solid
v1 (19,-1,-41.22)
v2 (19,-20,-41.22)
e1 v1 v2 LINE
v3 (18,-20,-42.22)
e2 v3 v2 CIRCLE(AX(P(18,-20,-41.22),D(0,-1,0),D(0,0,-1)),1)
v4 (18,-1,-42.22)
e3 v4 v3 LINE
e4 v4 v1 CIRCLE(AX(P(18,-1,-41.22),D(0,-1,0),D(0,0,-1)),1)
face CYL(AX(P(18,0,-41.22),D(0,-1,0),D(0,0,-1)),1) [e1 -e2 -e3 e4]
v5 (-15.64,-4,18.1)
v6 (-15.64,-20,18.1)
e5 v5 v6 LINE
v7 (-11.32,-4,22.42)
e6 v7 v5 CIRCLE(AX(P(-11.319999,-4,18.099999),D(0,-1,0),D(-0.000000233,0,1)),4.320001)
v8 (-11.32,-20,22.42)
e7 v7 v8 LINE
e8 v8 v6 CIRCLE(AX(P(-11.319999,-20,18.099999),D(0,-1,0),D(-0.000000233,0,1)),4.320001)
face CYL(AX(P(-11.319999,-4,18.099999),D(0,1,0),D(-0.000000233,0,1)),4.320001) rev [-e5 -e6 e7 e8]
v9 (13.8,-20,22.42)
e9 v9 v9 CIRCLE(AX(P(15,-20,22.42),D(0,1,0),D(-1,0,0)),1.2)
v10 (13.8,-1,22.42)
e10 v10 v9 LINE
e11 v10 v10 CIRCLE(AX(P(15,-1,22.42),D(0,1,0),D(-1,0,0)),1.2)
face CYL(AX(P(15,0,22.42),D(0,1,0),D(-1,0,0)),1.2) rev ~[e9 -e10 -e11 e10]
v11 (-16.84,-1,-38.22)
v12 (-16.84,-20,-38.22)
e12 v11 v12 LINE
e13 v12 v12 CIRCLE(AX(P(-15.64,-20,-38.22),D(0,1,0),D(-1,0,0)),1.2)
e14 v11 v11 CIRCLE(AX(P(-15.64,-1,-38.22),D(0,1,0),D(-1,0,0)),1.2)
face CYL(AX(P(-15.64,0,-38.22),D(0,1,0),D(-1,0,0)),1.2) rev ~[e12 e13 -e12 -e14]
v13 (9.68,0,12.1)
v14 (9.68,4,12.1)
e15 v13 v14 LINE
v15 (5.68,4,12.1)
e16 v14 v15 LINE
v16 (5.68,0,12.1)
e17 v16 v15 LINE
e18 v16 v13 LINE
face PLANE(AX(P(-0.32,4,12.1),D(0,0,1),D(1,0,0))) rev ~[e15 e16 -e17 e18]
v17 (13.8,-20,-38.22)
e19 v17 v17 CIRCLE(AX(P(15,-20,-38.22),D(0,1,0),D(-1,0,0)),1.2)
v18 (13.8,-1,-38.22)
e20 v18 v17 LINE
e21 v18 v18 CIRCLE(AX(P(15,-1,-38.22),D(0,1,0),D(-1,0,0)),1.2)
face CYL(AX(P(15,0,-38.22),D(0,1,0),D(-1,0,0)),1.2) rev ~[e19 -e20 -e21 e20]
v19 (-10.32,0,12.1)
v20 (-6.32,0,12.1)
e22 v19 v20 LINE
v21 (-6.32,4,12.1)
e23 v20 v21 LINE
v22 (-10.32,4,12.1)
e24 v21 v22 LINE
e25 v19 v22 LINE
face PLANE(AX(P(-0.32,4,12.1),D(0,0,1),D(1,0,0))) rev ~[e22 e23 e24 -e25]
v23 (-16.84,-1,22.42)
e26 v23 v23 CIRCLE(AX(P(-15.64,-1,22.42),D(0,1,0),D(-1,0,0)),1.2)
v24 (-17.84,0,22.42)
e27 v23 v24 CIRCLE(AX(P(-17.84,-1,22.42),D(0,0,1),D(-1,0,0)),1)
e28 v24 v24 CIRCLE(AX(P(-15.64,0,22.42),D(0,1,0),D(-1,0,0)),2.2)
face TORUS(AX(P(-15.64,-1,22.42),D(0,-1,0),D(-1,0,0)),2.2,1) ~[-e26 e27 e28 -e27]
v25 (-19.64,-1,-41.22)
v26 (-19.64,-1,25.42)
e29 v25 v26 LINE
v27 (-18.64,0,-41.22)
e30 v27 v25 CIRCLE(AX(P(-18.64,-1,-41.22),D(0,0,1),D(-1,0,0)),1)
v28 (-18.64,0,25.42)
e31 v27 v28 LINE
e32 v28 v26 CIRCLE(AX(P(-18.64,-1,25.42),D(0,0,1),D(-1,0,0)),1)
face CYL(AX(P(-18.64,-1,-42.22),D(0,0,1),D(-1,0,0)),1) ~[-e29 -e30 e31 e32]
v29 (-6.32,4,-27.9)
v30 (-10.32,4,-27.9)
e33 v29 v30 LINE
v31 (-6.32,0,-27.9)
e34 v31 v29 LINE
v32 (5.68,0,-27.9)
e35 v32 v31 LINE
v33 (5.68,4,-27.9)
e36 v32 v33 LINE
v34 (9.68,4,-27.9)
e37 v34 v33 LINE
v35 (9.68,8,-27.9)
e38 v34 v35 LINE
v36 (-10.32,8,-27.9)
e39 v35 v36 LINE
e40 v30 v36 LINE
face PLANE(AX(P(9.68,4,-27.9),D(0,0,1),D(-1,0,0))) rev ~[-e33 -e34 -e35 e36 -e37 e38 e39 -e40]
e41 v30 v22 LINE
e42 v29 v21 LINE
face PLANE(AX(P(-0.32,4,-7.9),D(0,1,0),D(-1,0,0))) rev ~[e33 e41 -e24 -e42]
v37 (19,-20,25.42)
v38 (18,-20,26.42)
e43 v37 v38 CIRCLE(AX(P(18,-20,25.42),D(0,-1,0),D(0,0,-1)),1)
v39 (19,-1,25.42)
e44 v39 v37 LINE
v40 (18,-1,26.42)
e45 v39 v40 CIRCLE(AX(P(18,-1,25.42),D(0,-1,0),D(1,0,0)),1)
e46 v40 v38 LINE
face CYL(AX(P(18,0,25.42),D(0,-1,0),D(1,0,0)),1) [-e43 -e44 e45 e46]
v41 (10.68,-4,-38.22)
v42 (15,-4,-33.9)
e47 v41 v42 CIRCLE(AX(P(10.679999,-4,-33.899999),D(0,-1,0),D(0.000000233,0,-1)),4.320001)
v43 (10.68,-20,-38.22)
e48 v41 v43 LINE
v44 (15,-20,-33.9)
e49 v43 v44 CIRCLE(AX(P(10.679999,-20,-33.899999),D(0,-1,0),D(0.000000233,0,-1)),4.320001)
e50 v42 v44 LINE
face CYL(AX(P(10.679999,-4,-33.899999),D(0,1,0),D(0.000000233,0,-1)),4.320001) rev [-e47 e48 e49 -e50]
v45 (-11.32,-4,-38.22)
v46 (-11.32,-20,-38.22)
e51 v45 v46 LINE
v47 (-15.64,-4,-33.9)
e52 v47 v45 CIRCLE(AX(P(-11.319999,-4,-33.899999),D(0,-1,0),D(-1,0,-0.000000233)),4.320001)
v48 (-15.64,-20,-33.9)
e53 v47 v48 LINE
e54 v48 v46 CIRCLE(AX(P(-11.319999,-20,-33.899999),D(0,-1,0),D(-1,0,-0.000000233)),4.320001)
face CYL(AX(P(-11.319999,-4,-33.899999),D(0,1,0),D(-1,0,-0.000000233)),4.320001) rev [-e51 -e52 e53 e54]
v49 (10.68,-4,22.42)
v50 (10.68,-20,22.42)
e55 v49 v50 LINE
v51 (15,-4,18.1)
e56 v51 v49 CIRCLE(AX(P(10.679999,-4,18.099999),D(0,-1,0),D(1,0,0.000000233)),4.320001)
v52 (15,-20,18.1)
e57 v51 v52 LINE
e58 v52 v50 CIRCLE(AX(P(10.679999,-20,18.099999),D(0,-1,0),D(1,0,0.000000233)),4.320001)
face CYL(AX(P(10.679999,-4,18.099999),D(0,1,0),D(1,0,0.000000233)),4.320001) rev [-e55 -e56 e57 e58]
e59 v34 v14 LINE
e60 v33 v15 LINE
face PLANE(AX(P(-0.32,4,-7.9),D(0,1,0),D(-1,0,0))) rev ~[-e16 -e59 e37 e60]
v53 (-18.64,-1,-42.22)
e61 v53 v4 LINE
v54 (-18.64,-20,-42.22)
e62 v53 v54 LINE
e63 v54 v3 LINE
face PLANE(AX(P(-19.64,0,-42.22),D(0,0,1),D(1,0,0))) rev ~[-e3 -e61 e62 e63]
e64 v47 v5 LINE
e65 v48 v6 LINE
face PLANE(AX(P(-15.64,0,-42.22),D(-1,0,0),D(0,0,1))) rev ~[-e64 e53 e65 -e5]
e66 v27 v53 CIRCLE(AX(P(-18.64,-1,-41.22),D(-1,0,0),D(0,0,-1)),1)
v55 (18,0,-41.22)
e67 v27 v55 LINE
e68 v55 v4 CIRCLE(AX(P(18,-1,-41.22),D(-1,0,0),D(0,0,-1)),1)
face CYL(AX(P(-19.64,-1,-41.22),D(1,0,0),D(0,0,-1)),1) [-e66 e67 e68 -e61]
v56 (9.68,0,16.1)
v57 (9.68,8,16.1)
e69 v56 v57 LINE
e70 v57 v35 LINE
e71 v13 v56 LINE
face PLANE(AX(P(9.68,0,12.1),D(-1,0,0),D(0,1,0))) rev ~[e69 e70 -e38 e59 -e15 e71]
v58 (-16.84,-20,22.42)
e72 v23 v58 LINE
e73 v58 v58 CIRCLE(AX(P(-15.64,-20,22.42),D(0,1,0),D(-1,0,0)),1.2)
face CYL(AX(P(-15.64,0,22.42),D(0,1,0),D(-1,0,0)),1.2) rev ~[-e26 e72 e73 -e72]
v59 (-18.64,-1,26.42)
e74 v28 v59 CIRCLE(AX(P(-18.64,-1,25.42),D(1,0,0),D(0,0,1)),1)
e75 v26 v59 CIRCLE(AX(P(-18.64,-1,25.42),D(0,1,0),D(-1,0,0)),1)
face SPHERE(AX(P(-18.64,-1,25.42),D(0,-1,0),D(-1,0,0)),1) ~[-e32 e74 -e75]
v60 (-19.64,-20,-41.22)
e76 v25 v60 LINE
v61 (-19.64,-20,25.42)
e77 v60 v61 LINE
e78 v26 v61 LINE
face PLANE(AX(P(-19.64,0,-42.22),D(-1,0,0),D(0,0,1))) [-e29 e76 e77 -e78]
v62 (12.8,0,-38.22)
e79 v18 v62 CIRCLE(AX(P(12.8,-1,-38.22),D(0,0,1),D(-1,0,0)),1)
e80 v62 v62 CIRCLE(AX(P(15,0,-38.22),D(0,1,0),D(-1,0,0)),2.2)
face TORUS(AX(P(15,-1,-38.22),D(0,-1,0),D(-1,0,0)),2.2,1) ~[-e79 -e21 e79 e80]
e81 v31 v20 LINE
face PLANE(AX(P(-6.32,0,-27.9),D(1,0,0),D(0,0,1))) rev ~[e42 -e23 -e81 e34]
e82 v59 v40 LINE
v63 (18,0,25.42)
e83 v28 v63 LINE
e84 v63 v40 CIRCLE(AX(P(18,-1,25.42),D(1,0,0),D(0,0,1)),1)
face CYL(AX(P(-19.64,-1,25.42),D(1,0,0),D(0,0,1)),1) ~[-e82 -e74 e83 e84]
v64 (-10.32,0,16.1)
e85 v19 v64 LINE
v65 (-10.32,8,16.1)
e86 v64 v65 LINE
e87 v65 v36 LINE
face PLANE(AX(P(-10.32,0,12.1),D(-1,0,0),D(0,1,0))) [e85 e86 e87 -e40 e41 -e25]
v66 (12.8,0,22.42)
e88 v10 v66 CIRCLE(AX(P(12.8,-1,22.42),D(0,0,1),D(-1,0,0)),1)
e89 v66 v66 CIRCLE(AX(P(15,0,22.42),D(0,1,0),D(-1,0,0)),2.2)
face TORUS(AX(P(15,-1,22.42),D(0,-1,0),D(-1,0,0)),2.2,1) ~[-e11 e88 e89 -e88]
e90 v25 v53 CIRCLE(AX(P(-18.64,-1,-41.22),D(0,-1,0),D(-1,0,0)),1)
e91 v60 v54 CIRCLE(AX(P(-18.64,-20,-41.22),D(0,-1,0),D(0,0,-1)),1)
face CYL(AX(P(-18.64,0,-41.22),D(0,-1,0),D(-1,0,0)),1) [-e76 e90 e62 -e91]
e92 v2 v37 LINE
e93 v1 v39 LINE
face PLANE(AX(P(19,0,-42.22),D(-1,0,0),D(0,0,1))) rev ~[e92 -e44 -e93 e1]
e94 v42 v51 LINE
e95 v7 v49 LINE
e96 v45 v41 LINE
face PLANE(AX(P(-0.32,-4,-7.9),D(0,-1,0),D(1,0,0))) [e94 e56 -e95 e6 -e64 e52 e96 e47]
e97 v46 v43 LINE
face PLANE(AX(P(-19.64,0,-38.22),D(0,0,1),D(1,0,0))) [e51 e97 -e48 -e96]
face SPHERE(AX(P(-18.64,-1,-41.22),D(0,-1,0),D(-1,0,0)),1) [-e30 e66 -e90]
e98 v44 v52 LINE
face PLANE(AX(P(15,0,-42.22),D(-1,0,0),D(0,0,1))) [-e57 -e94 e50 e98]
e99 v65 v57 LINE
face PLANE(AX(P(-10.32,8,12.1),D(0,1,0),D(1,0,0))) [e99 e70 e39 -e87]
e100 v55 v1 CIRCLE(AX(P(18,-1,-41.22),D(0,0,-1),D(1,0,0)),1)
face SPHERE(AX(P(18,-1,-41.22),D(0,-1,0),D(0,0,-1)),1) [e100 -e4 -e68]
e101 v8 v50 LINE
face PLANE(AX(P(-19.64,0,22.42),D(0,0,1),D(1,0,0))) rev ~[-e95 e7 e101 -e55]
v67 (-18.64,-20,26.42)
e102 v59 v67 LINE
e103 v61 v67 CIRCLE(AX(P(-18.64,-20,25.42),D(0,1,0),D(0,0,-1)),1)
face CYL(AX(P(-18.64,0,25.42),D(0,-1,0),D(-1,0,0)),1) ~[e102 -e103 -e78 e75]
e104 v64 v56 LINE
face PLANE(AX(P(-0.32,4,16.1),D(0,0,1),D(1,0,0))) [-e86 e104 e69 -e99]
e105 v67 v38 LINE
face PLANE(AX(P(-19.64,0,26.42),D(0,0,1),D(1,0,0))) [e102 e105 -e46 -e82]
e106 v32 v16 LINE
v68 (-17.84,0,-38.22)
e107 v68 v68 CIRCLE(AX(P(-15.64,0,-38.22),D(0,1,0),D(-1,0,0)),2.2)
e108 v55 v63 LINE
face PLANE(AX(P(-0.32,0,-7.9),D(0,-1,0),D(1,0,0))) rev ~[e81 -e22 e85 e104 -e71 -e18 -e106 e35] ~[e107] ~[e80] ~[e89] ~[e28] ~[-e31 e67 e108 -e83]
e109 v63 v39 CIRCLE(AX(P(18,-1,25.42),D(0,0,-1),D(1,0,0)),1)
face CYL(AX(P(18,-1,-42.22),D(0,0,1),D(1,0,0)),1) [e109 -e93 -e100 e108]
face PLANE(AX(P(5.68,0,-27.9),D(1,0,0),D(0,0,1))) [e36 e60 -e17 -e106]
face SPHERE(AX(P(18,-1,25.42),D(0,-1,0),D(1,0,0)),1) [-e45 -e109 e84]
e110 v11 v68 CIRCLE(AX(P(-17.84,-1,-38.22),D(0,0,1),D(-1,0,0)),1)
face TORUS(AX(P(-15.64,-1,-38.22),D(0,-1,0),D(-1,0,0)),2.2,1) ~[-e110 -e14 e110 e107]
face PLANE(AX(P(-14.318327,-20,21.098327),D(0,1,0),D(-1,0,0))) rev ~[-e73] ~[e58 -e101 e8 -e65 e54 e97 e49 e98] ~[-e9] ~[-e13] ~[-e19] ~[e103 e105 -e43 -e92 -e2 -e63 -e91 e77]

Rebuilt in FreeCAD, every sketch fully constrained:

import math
import FreeCAD as App
import Part
import Sketcher

V = App.Vector


def edges_at(feature, points):
    """Names of the edges that pass closest to the given points."""
    edges = feature.Shape.Edges
    near = lambda p: min(range(len(edges)), key=lambda i: edges[i].distToShape(Part.Vertex(*p))[0])
    return sorted({f"Edge{near(p) + 1}" for p in points})


def faces_at(feature, points):
    """Names of the faces that lie closest to the given points."""
    faces = feature.Shape.Faces
    near = lambda p: min(range(len(faces)), key=lambda i: faces[i].distToShape(Part.Vertex(*p))[0])
    return sorted({f"Face{near(p) + 1}" for p in points})

doc = App.newDocument("Part")
params = doc.addObject("Spreadsheet::Sheet", "Params")
for row, (alias, value) in enumerate([
    ("sketch1_width", "38.64 mm"),
    ("sketch1_height", "68.64 mm"),
    ("pad1_length", "20 mm"),
    ("thickness_wall", "4 mm"),
    ("fillet_radius", "1 mm"),
    ("sketch2_radius", "4.320001 mm"),
    ("pad2_length", "16 mm"),
    ("sketch3_diameter", "2.4 mm"),
    ("pocket1_length", "25 mm"),
    ("fillet2_radius", "1 mm"),
    ("sketch4_width", "12 mm"),
    ("sketch4_height", "40 mm"),
    ("pad3_length", "4 mm"),
    ("sketch5_width", "20 mm"),
    ("sketch5_height", "40 mm"),
    ("pad4_length", "4 mm"),
    ("sketch6_width", "20 mm"),
    ("sketch6_height", "8 mm"),
    ("pad5_length", "4 mm"),
], start=1):
    params.set(f"A{row}", alias)
    params.set(f"B{row}", "=" + value)
    params.setAlias(f"B{row}", alias)

body = doc.addObject("PartDesign::Body", "Body")

sketch1 = body.newObject("Sketcher::SketchObject", "Sketch")
sketch1.AttachmentSupport = (doc.getObject("XZ_Plane"), [""])
sketch1.MapMode = "FlatFace"
sketch1.addGeometry(Part.LineSegment(V(-19.64, 26.42, 0), V(-19.64, -42.22, 0)), False)
sketch1.addGeometry(Part.LineSegment(V(-19.64, -42.22, 0), V(19, -42.22, 0)), False)
sketch1.addGeometry(Part.LineSegment(V(19, -42.22, 0), V(19, 26.42, 0)), False)
sketch1.addGeometry(Part.LineSegment(V(19, 26.42, 0), V(-19.64, 26.42, 0)), False)
sketch1.addConstraint(Sketcher.Constraint("Coincident", 0, 2, 1, 1))
sketch1.addConstraint(Sketcher.Constraint("Coincident", 1, 2, 2, 1))
sketch1.addConstraint(Sketcher.Constraint("Coincident", 2, 2, 3, 1))
sketch1.addConstraint(Sketcher.Constraint("Coincident", 3, 2, 0, 1))
sketch1.addConstraint(Sketcher.Constraint("Vertical", 0))
sketch1.addConstraint(Sketcher.Constraint("Horizontal", 1))
sketch1.addConstraint(Sketcher.Constraint("Vertical", 2))
sketch1.addConstraint(Sketcher.Constraint("Horizontal", 3))
sketch1.addConstraint(Sketcher.Constraint("DistanceX", -1, 1, 1, 2, 19.0))
sketch1.addConstraint(Sketcher.Constraint("DistanceX", 1, 1, 1, 2, 38.64))
sketch1.addConstraint(Sketcher.Constraint("DistanceY", 0, 2, 0, 1, 68.64))
sketch1.addConstraint(Sketcher.Constraint("DistanceY", 0, 2, -1, 1, 42.22))
sketch1.setExpression("Constraints[9]", "Params.sketch1_width")
sketch1.setExpression("Constraints[10]", "Params.sketch1_height")
pad1 = body.newObject("PartDesign::Pad", "Pad")
pad1.Profile = sketch1
pad1.setExpression("Length", "Params.pad1_length")
doc.recompute()

thickness = body.newObject("PartDesign::Thickness", "Thickness")
thickness.Base = (pad1, faces_at(pad1, [(-0.32, -20, -7.9)]))
thickness.setExpression("Value", "Params.thickness_wall")
thickness.Reversed = True
thickness.Join = "Arc"
doc.recompute()

fillet = body.newObject("PartDesign::Fillet", "Fillet")
fillet.Base = (thickness, edges_at(thickness, [
    (-19.64, -10, 26.42),
    (19, -10, 26.42),
    (19, -10, -42.22),
    (-19.64, -10, -42.22),
    (-19.64, 0, -7.9),
    (-0.32, 0, -42.22),
    (19, 0, -7.9),
    (-0.32, 0, 26.42),
]))
fillet.setExpression("Radius", "Params.fillet_radius")

sketch2 = body.newObject("Sketcher::SketchObject", "Sketch001")
sketch2.AttachmentSupport = (doc.getObject("XZ_Plane"), [""])
sketch2.MapMode = "FlatFace"
sketch2.AttachmentOffset = App.Placement(V(0, 0, 4), App.Rotation())
sketch2.addGeometry(Part.ArcOfCircle(Part.Circle(V(-11.319999, 18.099999, 0), V(0, 0, 1), 4.320001), math.radians(90.000013), math.radians(179.999987)), False)
sketch2.addGeometry(Part.LineSegment(V(-11.32, 22.42, 0), V(-15.64, 22.42, 0)), False)
sketch2.addGeometry(Part.LineSegment(V(-15.64, 22.42, 0), V(-15.64, 18.1, 0)), False)
sketch2.addGeometry(Part.ArcOfCircle(Part.Circle(V(10.679999, 18.099999, 0), V(0, 0, 1), 4.320001), math.radians(0.000013), math.radians(89.999987)), False)
sketch2.addGeometry(Part.LineSegment(V(15, 18.1, 0), V(15, 22.42, 0)), False)
sketch2.addGeometry(Part.LineSegment(V(15, 22.42, 0), V(10.68, 22.42, 0)), False)
sketch2.addGeometry(Part.ArcOfCircle(Part.Circle(V(10.679999, -33.899999, 0), V(0, 0, 1), 4.320001), math.radians(-89.999987), math.radians(-0.000013)), False)
sketch2.addGeometry(Part.LineSegment(V(10.68, -38.22, 0), V(15, -38.22, 0)), False)
sketch2.addGeometry(Part.LineSegment(V(15, -38.22, 0), V(15, -33.9, 0)), False)
sketch2.addGeometry(Part.LineSegment(V(-15.64, -33.9, 0), V(-15.64, -38.22, 0)), False)
sketch2.addGeometry(Part.LineSegment(V(-15.64, -38.22, 0), V(-11.32, -38.22, 0)), False)
sketch2.addGeometry(Part.ArcOfCircle(Part.Circle(V(-11.319999, -33.899999, 0), V(0, 0, 1), 4.320001), math.radians(-179.999987), math.radians(-90.000013)), False)
sketch2.addConstraint(Sketcher.Constraint("Tangent", 0, 1, 1, 1))
sketch2.addConstraint(Sketcher.Constraint("Coincident", 1, 2, 2, 1))
sketch2.addConstraint(Sketcher.Constraint("Tangent", 2, 2, 0, 2))
sketch2.addConstraint(Sketcher.Constraint("Tangent", 3, 1, 4, 1))
sketch2.addConstraint(Sketcher.Constraint("Coincident", 4, 2, 5, 1))
sketch2.addConstraint(Sketcher.Constraint("Tangent", 5, 2, 3, 2))
sketch2.addConstraint(Sketcher.Constraint("Tangent", 6, 1, 7, 1))
sketch2.addConstraint(Sketcher.Constraint("Coincident", 7, 2, 8, 1))
sketch2.addConstraint(Sketcher.Constraint("Tangent", 8, 2, 6, 2))
sketch2.addConstraint(Sketcher.Constraint("Coincident", 9, 2, 10, 1))
sketch2.addConstraint(Sketcher.Constraint("Tangent", 10, 2, 11, 2))
sketch2.addConstraint(Sketcher.Constraint("Tangent", 11, 1, 9, 1))
sketch2.addConstraint(Sketcher.Constraint("Horizontal", 1))
sketch2.addConstraint(Sketcher.Constraint("Vertical", 2))
sketch2.addConstraint(Sketcher.Constraint("Vertical", 4))
sketch2.addConstraint(Sketcher.Constraint("Horizontal", 5))
sketch2.addConstraint(Sketcher.Constraint("Horizontal", 7))
sketch2.addConstraint(Sketcher.Constraint("Vertical", 8))
sketch2.addConstraint(Sketcher.Constraint("Vertical", 9))
sketch2.addConstraint(Sketcher.Constraint("Horizontal", 10))
sketch2.addConstraint(Sketcher.Constraint("Equal", 0, 3))
sketch2.addConstraint(Sketcher.Constraint("Equal", 3, 6))
sketch2.addConstraint(Sketcher.Constraint("Equal", 6, 11))
sketch2.addConstraint(Sketcher.Constraint("Horizontal", 0, 3, 3, 3))
sketch2.addConstraint(Sketcher.Constraint("Horizontal", 6, 3, 11, 3))
sketch2.addConstraint(Sketcher.Constraint("Vertical", 3, 3, 6, 3))
sketch2.addConstraint(Sketcher.Constraint("Vertical", 0, 3, 11, 3))
sketch2.addConstraint(Sketcher.Constraint("Radius", 0, 4.320001))
sketch2.addConstraint(Sketcher.Constraint("DistanceX", -1, 1, 3, 1, 15.0))
sketch2.addConstraint(Sketcher.Constraint("DistanceX", 0, 1, 3, 3, 21.999999))
sketch2.addConstraint(Sketcher.Constraint("DistanceY", 11, 3, 2, 2, 51.999999))
sketch2.addConstraint(Sketcher.Constraint("DistanceY", -1, 1, 0, 3, 18.099999))
sketch2.setExpression("Constraints[27]", "Params.sketch2_radius")
pad2 = body.newObject("PartDesign::Pad", "Pad001")
pad2.Profile = sketch2
pad2.setExpression("Length", "Params.pad2_length")

sketch3 = body.newObject("Sketcher::SketchObject", "Sketch002")
sketch3.AttachmentSupport = (doc.getObject("XZ_Plane"), [""])
sketch3.MapMode = "FlatFace"
sketch3.addGeometry(Part.Circle(V(15, 22.42, 0), V(0, 0, 1), 1.2), False)
sketch3.addGeometry(Part.Circle(V(-15.64, 22.42, 0), V(0, 0, 1), 1.2), False)
sketch3.addGeometry(Part.Circle(V(15, -38.22, 0), V(0, 0, 1), 1.2), False)
sketch3.addGeometry(Part.Circle(V(-15.64, -38.22, 0), V(0, 0, 1), 1.2), False)
sketch3.addConstraint(Sketcher.Constraint("Equal", 0, 1))
sketch3.addConstraint(Sketcher.Constraint("Equal", 1, 2))
sketch3.addConstraint(Sketcher.Constraint("Equal", 2, 3))
sketch3.addConstraint(Sketcher.Constraint("Horizontal", 0, 3, 1, 3))
sketch3.addConstraint(Sketcher.Constraint("Horizontal", 2, 3, 3, 3))
sketch3.addConstraint(Sketcher.Constraint("Vertical", 0, 3, 2, 3))
sketch3.addConstraint(Sketcher.Constraint("Vertical", 1, 3, 3, 3))
sketch3.addConstraint(Sketcher.Constraint("Diameter", 0, 2.4))
sketch3.addConstraint(Sketcher.Constraint("DistanceX", -1, 1, 0, 3, 15.0))
sketch3.addConstraint(Sketcher.Constraint("DistanceY", -1, 1, 0, 3, 22.42))
sketch3.addConstraint(Sketcher.Constraint("DistanceX", 1, 3, -1, 1, 15.64))
sketch3.addConstraint(Sketcher.Constraint("DistanceY", 2, 3, -1, 1, 38.22))
sketch3.setExpression("Constraints[7]", "Params.sketch3_diameter")
pocket1 = body.newObject("PartDesign::Pocket", "Pocket")
pocket1.Profile = sketch3
pocket1.setExpression("Length", "Params.pocket1_length")
pocket1.Reversed = True
doc.recompute()

fillet2 = body.newObject("PartDesign::Fillet", "Fillet001")
fillet2.Base = (pocket1, edges_at(pocket1, [
    (-14.44, 0, 22.42),
    (16.2, 0, 22.42),
    (16.2, 0, -38.22),
    (-14.44, 0, -38.22),
]))
fillet2.setExpression("Radius", "Params.fillet2_radius")

sketch4 = body.newObject("Sketcher::SketchObject", "Sketch003")
sketch4.AttachmentSupport = (doc.getObject("XZ_Plane"), [""])
sketch4.MapMode = "FlatFace"
sketch4.addGeometry(Part.LineSegment(V(5.68, 12.1, 0), V(5.68, -27.9, 0)), False)
sketch4.addGeometry(Part.LineSegment(V(5.68, -27.9, 0), V(-6.32, -27.9, 0)), False)
sketch4.addGeometry(Part.LineSegment(V(-6.32, -27.9, 0), V(-6.32, 12.1, 0)), False)
sketch4.addGeometry(Part.LineSegment(V(-6.32, 12.1, 0), V(5.68, 12.1, 0)), False)
sketch4.addConstraint(Sketcher.Constraint("Coincident", 0, 2, 1, 1))
sketch4.addConstraint(Sketcher.Constraint("Coincident", 1, 2, 2, 1))
sketch4.addConstraint(Sketcher.Constraint("Coincident", 2, 2, 3, 1))
sketch4.addConstraint(Sketcher.Constraint("Coincident", 3, 2, 0, 1))
sketch4.addConstraint(Sketcher.Constraint("Vertical", 0))
sketch4.addConstraint(Sketcher.Constraint("Horizontal", 1))
sketch4.addConstraint(Sketcher.Constraint("Vertical", 2))
sketch4.addConstraint(Sketcher.Constraint("Horizontal", 3))
sketch4.addConstraint(Sketcher.Constraint("DistanceX", 1, 2, 1, 1, 12.0))
sketch4.addConstraint(Sketcher.Constraint("DistanceY", 0, 2, 0, 1, 40.0))
sketch4.addConstraint(Sketcher.Constraint("DistanceY", 0, 2, -1, 1, 27.9))
sketch4.addConstraint(Sketcher.Constraint("DistanceX", -1, 1, 0, 2, 5.68))
sketch4.setExpression("Constraints[8]", "Params.sketch4_width")
sketch4.setExpression("Constraints[9]", "Params.sketch4_height")
pad3 = body.newObject("PartDesign::Pad", "Pad002")
pad3.Profile = sketch4
pad3.setExpression("Length", "Params.pad3_length")
pad3.Reversed = True

sketch5 = body.newObject("Sketcher::SketchObject", "Sketch004")
sketch5.AttachmentSupport = (doc.getObject("XZ_Plane"), [""])
sketch5.MapMode = "FlatFace"
sketch5.AttachmentOffset = App.Placement(V(0, 0, -4), App.Rotation())
sketch5.addGeometry(Part.LineSegment(V(9.68, 12.1, 0), V(9.68, -27.9, 0)), False)
sketch5.addGeometry(Part.LineSegment(V(9.68, -27.9, 0), V(-10.32, -27.9, 0)), False)
sketch5.addGeometry(Part.LineSegment(V(-10.32, -27.9, 0), V(-10.32, 12.1, 0)), False)
sketch5.addGeometry(Part.LineSegment(V(-10.32, 12.1, 0), V(9.68, 12.1, 0)), False)
sketch5.addConstraint(Sketcher.Constraint("Coincident", 0, 2, 1, 1))
sketch5.addConstraint(Sketcher.Constraint("Coincident", 1, 2, 2, 1))
sketch5.addConstraint(Sketcher.Constraint("Coincident", 2, 2, 3, 1))
sketch5.addConstraint(Sketcher.Constraint("Coincident", 3, 2, 0, 1))
sketch5.addConstraint(Sketcher.Constraint("Vertical", 0))
sketch5.addConstraint(Sketcher.Constraint("Horizontal", 1))
sketch5.addConstraint(Sketcher.Constraint("Vertical", 2))
sketch5.addConstraint(Sketcher.Constraint("Horizontal", 3))
sketch5.addConstraint(Sketcher.Constraint("DistanceX", 1, 2, 1, 1, 20.0))
sketch5.addConstraint(Sketcher.Constraint("DistanceY", 0, 2, 0, 1, 40.0))
sketch5.addConstraint(Sketcher.Constraint("DistanceY", 0, 2, -1, 1, 27.9))
sketch5.addConstraint(Sketcher.Constraint("DistanceX", -1, 1, 0, 2, 9.68))
sketch5.setExpression("Constraints[8]", "Params.sketch5_width")
sketch5.setExpression("Constraints[9]", "Params.sketch5_height")
pad4 = body.newObject("PartDesign::Pad", "Pad003")
pad4.Profile = sketch5
pad4.setExpression("Length", "Params.pad4_length")
pad4.Reversed = True

sketch6 = body.newObject("Sketcher::SketchObject", "Sketch005")
sketch6.AttachmentSupport = (doc.getObject("XY_Plane"), [""])
sketch6.MapMode = "FlatFace"
sketch6.AttachmentOffset = App.Placement(V(0, 0, 12.1), App.Rotation())
sketch6.addGeometry(Part.LineSegment(V(-10.32, 8, 0), V(-10.32, 0, 0)), False)
sketch6.addGeometry(Part.LineSegment(V(-10.32, 0, 0), V(9.68, 0, 0)), False)
sketch6.addGeometry(Part.LineSegment(V(9.68, 0, 0), V(9.68, 8, 0)), False)
sketch6.addGeometry(Part.LineSegment(V(9.68, 8, 0), V(-10.32, 8, 0)), False)
sketch6.addConstraint(Sketcher.Constraint("Coincident", 0, 2, 1, 1))
sketch6.addConstraint(Sketcher.Constraint("Coincident", 1, 2, 2, 1))
sketch6.addConstraint(Sketcher.Constraint("Coincident", 2, 2, 3, 1))
sketch6.addConstraint(Sketcher.Constraint("Coincident", 3, 2, 0, 1))
sketch6.addConstraint(Sketcher.Constraint("Vertical", 0))
sketch6.addConstraint(Sketcher.Constraint("Horizontal", 1))
sketch6.addConstraint(Sketcher.Constraint("Vertical", 2))
sketch6.addConstraint(Sketcher.Constraint("Horizontal", 3))
sketch6.addConstraint(Sketcher.Constraint("PointOnObject", 0, 2, -1))
sketch6.addConstraint(Sketcher.Constraint("DistanceX", 1, 1, 1, 2, 20.0))
sketch6.addConstraint(Sketcher.Constraint("DistanceY", 0, 2, 0, 1, 8.0))
sketch6.addConstraint(Sketcher.Constraint("DistanceX", 0, 2, -1, 1, 10.32))
sketch6.setExpression("Constraints[9]", "Params.sketch6_width")
sketch6.setExpression("Constraints[10]", "Params.sketch6_height")
pad5 = body.newObject("PartDesign::Pad", "Pad004")
pad5.Profile = sketch6
pad5.setExpression("Length", "Params.pad5_length")

doc.recompute()
